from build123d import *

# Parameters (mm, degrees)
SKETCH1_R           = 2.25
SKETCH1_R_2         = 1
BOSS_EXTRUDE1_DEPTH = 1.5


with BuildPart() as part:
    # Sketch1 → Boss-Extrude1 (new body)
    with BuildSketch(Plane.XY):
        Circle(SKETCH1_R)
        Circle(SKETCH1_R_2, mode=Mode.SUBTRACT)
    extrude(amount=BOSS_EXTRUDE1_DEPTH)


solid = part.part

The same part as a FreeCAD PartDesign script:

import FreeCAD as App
import Part
import Sketcher

V = App.Vector

doc = App.newDocument("Part")
params = doc.addObject("Spreadsheet::Sheet", "Params")
for row, (alias, value) in enumerate([
    ("sketch1_diameter", "2 mm"),
    ("sketch1_diameter2", "4.5 mm"),
    ("pad1_length", "1.5 mm"),
], start=1):
    params.set(f"A{row}", alias)
    params.set(f"B{row}", "=" + value)
    params.setAlias(f"B{row}", alias)

body = doc.addObject("PartDesign::Body", "Body")

# Sketch on XY plane
sketch1 = body.newObject("Sketcher::SketchObject", "Sketch")
sketch1.AttachmentSupport = (doc.getObject("XY_Plane"), [""])
sketch1.MapMode = "FlatFace"
sketch1.addGeometry([
    Part.Circle(V(0, 0, 0), V(0, 0, 1), 2.25),
    Part.Circle(V(0, 0, 0), V(0, 0, 1), 1),
], False)
sketch1.addConstraint([
    Sketcher.Constraint("Coincident", 0, 3, -1, 1),
    Sketcher.Constraint("Coincident", 1, 3, -1, 1),
    Sketcher.Constraint("Diameter", 1, 2.0),
    Sketcher.Constraint("Diameter", 0, 4.5),
])
sketch1.setExpression("Constraints[2]", "Params.sketch1_diameter")
sketch1.setExpression("Constraints[3]", "Params.sketch1_diameter2")
pad1 = body.newObject("PartDesign::Pad", "Pad")
pad1.Profile = sketch1
pad1.setExpression("Length", "Params.pad1_length")

doc.recompute()
